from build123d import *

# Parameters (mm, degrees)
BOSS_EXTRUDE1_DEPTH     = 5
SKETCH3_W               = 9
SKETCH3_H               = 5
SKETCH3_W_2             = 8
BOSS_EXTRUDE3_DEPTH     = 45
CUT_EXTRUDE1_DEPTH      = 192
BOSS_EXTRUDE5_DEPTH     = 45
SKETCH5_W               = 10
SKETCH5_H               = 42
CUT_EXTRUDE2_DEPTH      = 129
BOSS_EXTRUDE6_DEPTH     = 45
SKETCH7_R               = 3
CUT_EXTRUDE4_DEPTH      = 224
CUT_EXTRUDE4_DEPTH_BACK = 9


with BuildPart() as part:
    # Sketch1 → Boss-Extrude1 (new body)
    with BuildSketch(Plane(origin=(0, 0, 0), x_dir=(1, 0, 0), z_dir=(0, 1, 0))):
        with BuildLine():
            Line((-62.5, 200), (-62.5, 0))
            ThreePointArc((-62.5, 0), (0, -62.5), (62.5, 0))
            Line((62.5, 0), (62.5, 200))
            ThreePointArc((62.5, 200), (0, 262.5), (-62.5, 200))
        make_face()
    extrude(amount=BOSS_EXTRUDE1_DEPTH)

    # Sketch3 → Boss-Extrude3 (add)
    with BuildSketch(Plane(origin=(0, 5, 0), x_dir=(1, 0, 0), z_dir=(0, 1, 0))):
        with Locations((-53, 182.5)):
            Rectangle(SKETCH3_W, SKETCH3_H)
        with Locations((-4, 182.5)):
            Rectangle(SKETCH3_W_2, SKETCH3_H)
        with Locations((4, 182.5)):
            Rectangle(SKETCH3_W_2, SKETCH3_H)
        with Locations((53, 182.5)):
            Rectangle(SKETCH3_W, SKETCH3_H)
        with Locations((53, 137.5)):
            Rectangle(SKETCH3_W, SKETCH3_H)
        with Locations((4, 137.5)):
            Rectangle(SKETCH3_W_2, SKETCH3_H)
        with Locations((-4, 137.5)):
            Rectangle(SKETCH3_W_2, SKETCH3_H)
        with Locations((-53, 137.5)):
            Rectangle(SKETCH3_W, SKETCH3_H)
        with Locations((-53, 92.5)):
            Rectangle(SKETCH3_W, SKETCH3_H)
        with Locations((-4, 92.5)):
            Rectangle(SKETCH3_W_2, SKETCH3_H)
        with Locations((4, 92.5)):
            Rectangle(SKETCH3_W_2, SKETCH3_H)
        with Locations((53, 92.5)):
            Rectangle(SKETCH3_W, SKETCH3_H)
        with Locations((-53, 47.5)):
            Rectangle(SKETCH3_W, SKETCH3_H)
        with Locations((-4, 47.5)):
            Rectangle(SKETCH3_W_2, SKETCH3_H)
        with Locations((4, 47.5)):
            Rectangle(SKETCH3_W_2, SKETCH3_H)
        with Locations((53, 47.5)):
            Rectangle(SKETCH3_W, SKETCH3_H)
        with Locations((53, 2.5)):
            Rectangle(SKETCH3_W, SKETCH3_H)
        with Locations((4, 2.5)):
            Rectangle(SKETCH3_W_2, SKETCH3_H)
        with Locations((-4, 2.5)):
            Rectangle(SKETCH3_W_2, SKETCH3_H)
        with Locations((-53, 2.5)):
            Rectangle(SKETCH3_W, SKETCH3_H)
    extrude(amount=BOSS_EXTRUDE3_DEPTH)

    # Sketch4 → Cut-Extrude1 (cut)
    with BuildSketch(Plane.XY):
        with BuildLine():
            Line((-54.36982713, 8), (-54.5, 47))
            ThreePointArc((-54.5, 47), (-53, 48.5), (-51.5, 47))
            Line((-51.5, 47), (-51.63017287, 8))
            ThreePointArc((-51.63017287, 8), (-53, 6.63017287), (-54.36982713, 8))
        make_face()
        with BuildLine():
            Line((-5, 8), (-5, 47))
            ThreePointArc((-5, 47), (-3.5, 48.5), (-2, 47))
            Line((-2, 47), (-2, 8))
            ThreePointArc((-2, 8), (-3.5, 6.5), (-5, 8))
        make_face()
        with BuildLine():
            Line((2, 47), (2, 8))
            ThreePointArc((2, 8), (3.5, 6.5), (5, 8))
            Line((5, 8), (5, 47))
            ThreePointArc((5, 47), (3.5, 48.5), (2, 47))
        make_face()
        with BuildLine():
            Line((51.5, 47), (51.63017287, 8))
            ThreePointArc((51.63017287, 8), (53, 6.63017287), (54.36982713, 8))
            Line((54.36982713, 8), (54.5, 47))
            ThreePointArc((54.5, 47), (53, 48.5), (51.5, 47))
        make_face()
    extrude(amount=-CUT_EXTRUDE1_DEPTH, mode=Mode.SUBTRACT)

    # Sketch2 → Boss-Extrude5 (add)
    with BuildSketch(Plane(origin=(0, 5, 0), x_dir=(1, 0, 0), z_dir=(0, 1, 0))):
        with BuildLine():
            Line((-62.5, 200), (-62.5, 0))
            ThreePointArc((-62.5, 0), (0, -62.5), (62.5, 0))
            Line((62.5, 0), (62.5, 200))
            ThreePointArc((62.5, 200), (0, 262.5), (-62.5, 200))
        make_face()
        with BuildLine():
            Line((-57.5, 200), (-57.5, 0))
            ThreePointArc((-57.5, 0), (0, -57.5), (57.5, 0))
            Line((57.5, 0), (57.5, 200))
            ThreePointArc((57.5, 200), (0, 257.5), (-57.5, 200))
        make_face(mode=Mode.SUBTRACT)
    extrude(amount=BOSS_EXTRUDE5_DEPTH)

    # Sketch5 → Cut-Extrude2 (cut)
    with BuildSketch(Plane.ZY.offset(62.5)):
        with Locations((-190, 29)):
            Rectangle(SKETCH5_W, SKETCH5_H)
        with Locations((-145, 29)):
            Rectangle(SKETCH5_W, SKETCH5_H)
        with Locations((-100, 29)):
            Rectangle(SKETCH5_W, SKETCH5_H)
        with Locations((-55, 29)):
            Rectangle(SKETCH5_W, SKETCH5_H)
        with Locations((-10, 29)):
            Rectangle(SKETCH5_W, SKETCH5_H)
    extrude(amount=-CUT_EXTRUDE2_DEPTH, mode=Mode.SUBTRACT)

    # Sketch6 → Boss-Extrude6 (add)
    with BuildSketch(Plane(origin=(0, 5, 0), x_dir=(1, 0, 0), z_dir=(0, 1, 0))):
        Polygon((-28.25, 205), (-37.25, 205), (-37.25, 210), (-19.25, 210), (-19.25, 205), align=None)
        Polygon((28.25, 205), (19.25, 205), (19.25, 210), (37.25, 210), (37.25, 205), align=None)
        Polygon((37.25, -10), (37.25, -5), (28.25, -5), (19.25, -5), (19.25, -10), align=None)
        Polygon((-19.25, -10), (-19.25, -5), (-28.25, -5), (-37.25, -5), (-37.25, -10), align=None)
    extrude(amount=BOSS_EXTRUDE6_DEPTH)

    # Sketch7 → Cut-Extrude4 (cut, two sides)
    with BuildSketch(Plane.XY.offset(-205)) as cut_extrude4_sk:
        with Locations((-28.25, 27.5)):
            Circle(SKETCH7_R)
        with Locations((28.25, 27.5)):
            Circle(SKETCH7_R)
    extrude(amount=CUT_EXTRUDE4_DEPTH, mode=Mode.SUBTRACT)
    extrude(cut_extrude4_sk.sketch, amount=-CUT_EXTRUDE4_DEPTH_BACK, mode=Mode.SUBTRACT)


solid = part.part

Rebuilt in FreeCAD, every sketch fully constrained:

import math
import FreeCAD as App
import Part
import Sketcher
from FreeCAD import Vector
Q = App.Units.Quantity


def add_polygon(sketch, points):
    """Adds a closed chain of lines whose ends are joined by coincident constraints."""
    first, n = sketch.GeometryCount, len(points)
    for a, b in zip(points, points[1:] + points[:1]):
        sketch.addGeometry(Part.LineSegment(App.Vector(*a, 0), App.Vector(*b, 0)), False)
    for i in range(n):
        sketch.addConstraint(Sketcher.Constraint("Coincident", first + i, 2, first + (i + 1) % n, 1))

doc = App.newDocument("Part")
body = doc.addObject("PartDesign::Body", "Body")

sketch1 = body.newObject("Sketcher::SketchObject", "Sketch")
sketch1.AttachmentSupport = (doc.getObject("XZ_Plane"), [""])
sketch1.MapMode = "FlatFace"
sketch1.addGeometry([
    Part.LineSegment(Vector(-62.5, -200, 0), Vector(-62.5, 0, 0)),
    Part.ArcOfCircle(Part.Circle(Vector(0, 0, 0), Vector(0, 0, 1), 62.5), math.radians(0), math.radians(180)),
    Part.LineSegment(Vector(62.5, 0, 0), Vector(62.5, -200, 0)),
    Part.ArcOfCircle(Part.Circle(Vector(0, -200, 0), Vector(0, 0, 1), 62.5), math.radians(180), math.radians(360)),
], False)
sketch1.addConstraint([
    Sketcher.Constraint("Tangent", 0, 2, 1, 2),
    Sketcher.Constraint("Tangent", 1, 1, 2, 1),
    Sketcher.Constraint("Tangent", 2, 2, 3, 2),
    Sketcher.Constraint("Tangent", 3, 1, 0, 1),
    Sketcher.Constraint("Vertical", 0),
    Sketcher.Constraint("Vertical", 2),
    Sketcher.Constraint("Coincident", 1, 3, -1, 1),
    Sketcher.Constraint("Radius", 1, Q("62.5 mm")),
    Sketcher.Constraint("DistanceY", 0, 1, 0, 2, Q("200 mm")),
])
pad1 = body.newObject("PartDesign::Pad", "Pad")
pad1.Profile = sketch1
pad1.Length = 5
pad1.Reversed = True

sketch2 = body.newObject("Sketcher::SketchObject", "Sketch001")
sketch2.AttachmentSupport = (doc.getObject("XZ_Plane"), [""])
sketch2.MapMode = "FlatFace"
sketch2.AttachmentOffset = App.Placement(Vector(0, 0, -5), App.Rotation())
add_polygon(sketch2, [(-57.5, -185), (-57.5, -180), (-48.5, -180), (-48.5, -185)])
add_polygon(sketch2, [(-8, -185), (-8, -180), (8, -180), (8, -185)])
add_polygon(sketch2, [(48.5, -185), (48.5, -180), (57.5, -180), (57.5, -185)])
add_polygon(sketch2, [(48.5, -140), (48.5, -135), (57.5, -135), (57.5, -140)])
add_polygon(sketch2, [(8, -135), (8, -140), (-8, -140), (-8, -135)])
add_polygon(sketch2, [(-57.5, -140), (-57.5, -135), (-48.5, -135), (-48.5, -140)])
add_polygon(sketch2, [(-57.5, -95), (-57.5, -90), (-48.5, -90), (-48.5, -95)])
add_polygon(sketch2, [(-8, -95), (-8, -90), (8, -90), (8, -95)])
add_polygon(sketch2, [(48.5, -95), (48.5, -90), (57.5, -90), (57.5, -95)])
add_polygon(sketch2, [(-57.5, -50), (-57.5, -45), (-48.5, -45), (-48.5, -50)])
add_polygon(sketch2, [(-8, -50), (-8, -45), (8, -45), (8, -50)])
add_polygon(sketch2, [(48.5, -50), (48.5, -45), (57.5, -45), (57.5, -50)])
add_polygon(sketch2, [(48.5, -5), (48.5, 0), (57.5, 0), (57.5, -5)])
add_polygon(sketch2, [(8, 0), (8, -5), (-8, -5), (-8, 0)])
add_polygon(sketch2, [(-57.5, -5), (-57.5, 0), (-48.5, 0), (-48.5, -5)])
sketch2.addConstraint([
    Sketcher.Constraint("Vertical", 0),
    Sketcher.Constraint("Horizontal", 1),
    Sketcher.Constraint("Vertical", 2),
    Sketcher.Constraint("Horizontal", 3),
    Sketcher.Constraint("Vertical", 4),
    Sketcher.Constraint("Horizontal", 5),
    Sketcher.Constraint("Vertical", 6),
    Sketcher.Constraint("Horizontal", 7),
    Sketcher.Constraint("Vertical", 8),
    Sketcher.Constraint("Horizontal", 9),
    Sketcher.Constraint("Vertical", 10),
    Sketcher.Constraint("Horizontal", 11),
    Sketcher.Constraint("Vertical", 12),
    Sketcher.Constraint("Horizontal", 13),
    Sketcher.Constraint("Vertical", 14),
    Sketcher.Constraint("Horizontal", 15),
    Sketcher.Constraint("Vertical", 16),
    Sketcher.Constraint("Horizontal", 17),
    Sketcher.Constraint("Vertical", 18),
    Sketcher.Constraint("Horizontal", 19),
    Sketcher.Constraint("Vertical", 20),
    Sketcher.Constraint("Horizontal", 21),
    Sketcher.Constraint("Vertical", 22),
    Sketcher.Constraint("Horizontal", 23),
    Sketcher.Constraint("Vertical", 24),
    Sketcher.Constraint("Horizontal", 25),
    Sketcher.Constraint("Vertical", 26),
    Sketcher.Constraint("Horizontal", 27),
    Sketcher.Constraint("Vertical", 28),
    Sketcher.Constraint("Horizontal", 29),
    Sketcher.Constraint("Vertical", 30),
    Sketcher.Constraint("Horizontal", 31),
    Sketcher.Constraint("Vertical", 32),
    Sketcher.Constraint("Horizontal", 33),
    Sketcher.Constraint("Vertical", 34),
    Sketcher.Constraint("Horizontal", 35),
    Sketcher.Constraint("Vertical", 36),
    Sketcher.Constraint("Horizontal", 37),
    Sketcher.Constraint("Vertical", 38),
    Sketcher.Constraint("Horizontal", 39),
    Sketcher.Constraint("Vertical", 40),
    Sketcher.Constraint("Horizontal", 41),
    Sketcher.Constraint("Vertical", 42),
    Sketcher.Constraint("Horizontal", 43),
    Sketcher.Constraint("Vertical", 44),
    Sketcher.Constraint("Horizontal", 45),
    Sketcher.Constraint("Vertical", 46),
    Sketcher.Constraint("Horizontal", 47),
    Sketcher.Constraint("Vertical", 48),
    Sketcher.Constraint("Horizontal", 49),
    Sketcher.Constraint("Vertical", 50),
    Sketcher.Constraint("Horizontal", 51),
    Sketcher.Constraint("Vertical", 52),
    Sketcher.Constraint("Horizontal", 53),
    Sketcher.Constraint("Vertical", 54),
    Sketcher.Constraint("Horizontal", 55),
    Sketcher.Constraint("Vertical", 56),
    Sketcher.Constraint("Horizontal", 57),
    Sketcher.Constraint("Vertical", 58),
    Sketcher.Constraint("Horizontal", 59),
    Sketcher.Constraint("Symmetric", 54, 2, 55, 2, -1, 1),
    Sketcher.Constraint("Symmetric", 49, 2, 56, 2, -1, 1),
    Sketcher.Constraint("Symmetric", 1, 2, 8, 2, -2),
    Sketcher.Constraint("Symmetric", 3, 2, 10, 2, -2),
    Sketcher.Constraint("Symmetric", 13, 2, 20, 2, -2),
    Sketcher.Constraint("Symmetric", 15, 2, 22, 2, -2),
    Sketcher.Constraint("Symmetric", 25, 2, 32, 2, -2),
    Sketcher.Constraint("Symmetric", 27, 2, 34, 2, -2),
    Sketcher.Constraint("Symmetric", 37, 2, 44, 2, -2),
    Sketcher.Constraint("Symmetric", 39, 2, 46, 2, -2),
    Sketcher.Constraint("Symmetric", 48, 2, 57, 2, -2),
    Sketcher.Constraint("Horizontal", 1, 2, 4, 2),
    Sketcher.Constraint("Horizontal", 3, 2, 6, 2),
    Sketcher.Constraint("Horizontal", 15, 2, 16, 2),
    Sketcher.Constraint("Horizontal", 13, 2, 18, 2),
    Sketcher.Constraint("Horizontal", 25, 2, 28, 2),
    Sketcher.Constraint("Horizontal", 27, 2, 30, 2),
    Sketcher.Constraint("Horizontal", 37, 2, 40, 2),
    Sketcher.Constraint("Horizontal", 39, 2, 42, 2),
    Sketcher.Constraint("Horizontal", 51, 2, 52, 2),
    Sketcher.Constraint("Horizontal", 53, 2, 58, 2),
    Sketcher.Constraint("Vertical", 11, 2, 12, 2),
    Sketcher.Constraint("Vertical", 10, 2, 13, 2),
    Sketcher.Constraint("Vertical", 6, 2, 16, 2),
    Sketcher.Constraint("Vertical", 7, 2, 17, 2),
    Sketcher.Constraint("Vertical", 23, 2, 24, 2),
    Sketcher.Constraint("Vertical", 22, 2, 25, 2),
    Sketcher.Constraint("Vertical", 18, 2, 28, 2),
    Sketcher.Constraint("Vertical", 19, 2, 29, 2),
    Sketcher.Constraint("Vertical", 27, 2, 36, 2),
    Sketcher.Constraint("Vertical", 26, 2, 37, 2),
    Sketcher.Constraint("Vertical", 31, 2, 40, 2),
    Sketcher.Constraint("Vertical", 30, 2, 41, 2),
    Sketcher.Constraint("Vertical", 47, 2, 48, 2),
    Sketcher.Constraint("Vertical", 46, 2, 49, 2),
    Sketcher.Constraint("Vertical", 42, 2, 52, 2),
    Sketcher.Constraint("Vertical", 43, 2, 53, 2),
    Sketcher.Constraint("Equal", 10, 12),
    Sketcher.Constraint("Equal", 22, 24),
    Sketcher.Constraint("Equal", 34, 36),
    Sketcher.Constraint("Equal", 46, 48),
    Sketcher.Constraint("DistanceX", 1, 1, 1, 2, Q("9 mm")),
    Sketcher.Constraint("DistanceX", 5, 1, 5, 2, Q("16 mm")),
    Sketcher.Constraint("DistanceY", 0, 1, 0, 2, Q("5 mm")),
    Sketcher.Constraint("DistanceY", 0, 2, -1, 1, Q("180 mm")),
    Sketcher.Constraint("DistanceY", 12, 2, -1, 1, Q("135 mm")),
    Sketcher.Constraint("DistanceY", 24, 2, -1, 1, Q("90 mm")),
    Sketcher.Constraint("DistanceY", 36, 2, -1, 1, Q("45 mm")),
    Sketcher.Constraint("DistanceX", 1, 2, 8, 2, Q("97 mm")),
])
pad2 = body.newObject("PartDesign::Pad", "Pad001")
pad2.Profile = sketch2
pad2.Length = 45
pad2.Reversed = True

sketch3 = body.newObject("Sketcher::SketchObject", "Sketch002")
sketch3.AttachmentSupport = (doc.getObject("XY_Plane"), [""])
sketch3.MapMode = "FlatFace"
sketch3.addGeometry([
    Part.LineSegment(Vector(-54.5, 47, 0), Vector(-54.369827, 8, 0)),
    Part.ArcOfCircle(Part.Circle(Vector(-53, 8, 0), Vector(0, 0, 1), 1.369827), math.radians(180), math.radians(360)),
    Part.LineSegment(Vector(-51.630173, 8, 0), Vector(-51.5, 47, 0)),
    Part.ArcOfCircle(Part.Circle(Vector(-53, 47, 0), Vector(0, 0, 1), 1.5), math.radians(0), math.radians(180)),
    Part.LineSegment(Vector(-5, 47, 0), Vector(-5, 8, 0)),
    Part.ArcOfCircle(Part.Circle(Vector(-3.5, 8, 0), Vector(0, 0, 1), 1.5), math.radians(180), math.radians(360)),
    Part.LineSegment(Vector(-2, 8, 0), Vector(-2, 47, 0)),
    Part.ArcOfCircle(Part.Circle(Vector(-3.5, 47, 0), Vector(0, 0, 1), 1.5), math.radians(0), math.radians(180)),
    Part.LineSegment(Vector(2, 47, 0), Vector(2, 8, 0)),
    Part.ArcOfCircle(Part.Circle(Vector(3.5, 8, 0), Vector(0, 0, 1), 1.5), math.radians(180), math.radians(360)),
    Part.LineSegment(Vector(5, 8, 0), Vector(5, 47, 0)),
    Part.ArcOfCircle(Part.Circle(Vector(3.5, 47, 0), Vector(0, 0, 1), 1.5), math.radians(0), math.radians(180)),
    Part.LineSegment(Vector(51.5, 47, 0), Vector(51.630173, 8, 0)),
    Part.ArcOfCircle(Part.Circle(Vector(53, 8, 0), Vector(0, 0, 1), 1.369827), math.radians(180), math.radians(360)),
    Part.LineSegment(Vector(54.369827, 8, 0), Vector(54.5, 47, 0)),
    Part.ArcOfCircle(Part.Circle(Vector(53, 47, 0), Vector(0, 0, 1), 1.5), math.radians(0), math.radians(180)),
], False)
sketch3.addConstraint([
    Sketcher.Constraint("Coincident", 0, 2, 1, 1),
    Sketcher.Constraint("Coincident", 1, 2, 2, 1),
    Sketcher.Constraint("Coincident", 2, 2, 3, 1),
    Sketcher.Constraint("Coincident", 3, 2, 0, 1),
    Sketcher.Constraint("Tangent", 4, 2, 5, 1),
    Sketcher.Constraint("Tangent", 5, 2, 6, 1),
    Sketcher.Constraint("Tangent", 6, 2, 7, 1),
    Sketcher.Constraint("Tangent", 7, 2, 4, 1),
    Sketcher.Constraint("Tangent", 8, 2, 9, 1),
    Sketcher.Constraint("Tangent", 9, 2, 10, 1),
    Sketcher.Constraint("Tangent", 10, 2, 11, 1),
    Sketcher.Constraint("Tangent", 11, 2, 8, 1),
    Sketcher.Constraint("Coincident", 12, 2, 13, 1),
    Sketcher.Constraint("Coincident", 13, 2, 14, 1),
    Sketcher.Constraint("Coincident", 14, 2, 15, 1),
    Sketcher.Constraint("Coincident", 15, 2, 12, 1),
    Sketcher.Constraint("Vertical", 4),
    Sketcher.Constraint("Vertical", 6),
    Sketcher.Constraint("Vertical", 8),
    Sketcher.Constraint("Vertical", 10),
    Sketcher.Constraint("Equal", 3, 5),
    Sketcher.Constraint("Equal", 7, 9),
    Sketcher.Constraint("Equal", 1, 13),
    Sketcher.Constraint("Equal", 11, 15),
    Sketcher.Constraint("Symmetric", 5, 3, 9, 3, -2),
    Sketcher.Constraint("Symmetric", 1, 3, 13, 3, -2),
    Sketcher.Constraint("Symmetric", 3, 3, 15, 3, -2),
    Sketcher.Constraint("Parallel", 0, 12),
    Sketcher.Constraint("Parallel", 2, 14),
    Sketcher.Constraint("Horizontal", 1, 3, 5, 3),
    Sketcher.Constraint("Horizontal", 3, 3, 7, 3),
    Sketcher.Constraint("Horizontal", 7, 3, 11, 3),
    Sketcher.Constraint("Horizontal", 13, 3, 0, 2),
    Sketcher.Constraint("Horizontal", 0, 2, 1, 2),
    Sketcher.Constraint("Horizontal", 15, 3, 2, 2),
    Sketcher.Constraint("Horizontal", 2, 2, 3, 2),
    Sketcher.Constraint("Horizontal", 9, 2, 12, 2),
    Sketcher.Constraint("Horizontal", 12, 2, 13, 2),
    Sketcher.Constraint("Horizontal", 11, 2, 14, 2),
    Sketcher.Constraint("Radius", 3, Q("1.5 mm")),
    Sketcher.Constraint("DistanceY", 4, 2, 4, 1, Q("39 mm")),
    Sketcher.Constraint("DistanceX", 1, 3, -1, 1, Q("53 mm")),
    Sketcher.Constraint("DistanceY", -1, 1, 1, 3, Q("8 mm")),
    Sketcher.Constraint("DistanceX", 4, 2, -1, 1, Q("5 mm")),
    Sketcher.Constraint("Radius", 1, Q("1.369827 mm")),
])
pocket1 = body.newObject("PartDesign::Pocket", "Pocket")
pocket1.Profile = sketch3
pocket1.Length = 192

sketch4 = body.newObject("Sketcher::SketchObject", "Sketch003")
sketch4.AttachmentSupport = (doc.getObject("XZ_Plane"), [""])
sketch4.MapMode = "FlatFace"
sketch4.AttachmentOffset = App.Placement(Vector(0, 0, -5), App.Rotation())
sketch4.addGeometry([
    Part.LineSegment(Vector(-62.5, -200, 0), Vector(-62.5, 0, 0)),
    Part.ArcOfCircle(Part.Circle(Vector(0, 0, 0), Vector(0, 0, 1), 62.5), math.radians(0), math.radians(180)),
    Part.LineSegment(Vector(62.5, 0, 0), Vector(62.5, -200, 0)),
    Part.ArcOfCircle(Part.Circle(Vector(0, -200, 0), Vector(0, 0, 1), 62.5), math.radians(180), math.radians(360)),
    Part.LineSegment(Vector(-57.5, 0, 0), Vector(-57.5, -200, 0)),
    Part.ArcOfCircle(Part.Circle(Vector(0, -200, 0), Vector(0, 0, 1), 57.5), math.radians(180), math.radians(360)),
    Part.LineSegment(Vector(57.5, -200, 0), Vector(57.5, 0, 0)),
    Part.ArcOfCircle(Part.Circle(Vector(0, 0, 0), Vector(0, 0, 1), 57.5), math.radians(0), math.radians(180)),
], False)
sketch4.addConstraint([
    Sketcher.Constraint("Tangent", 0, 2, 1, 2),
    Sketcher.Constraint("Tangent", 1, 1, 2, 1),
    Sketcher.Constraint("Tangent", 2, 2, 3, 2),
    Sketcher.Constraint("Tangent", 3, 1, 0, 1),
    Sketcher.Constraint("Tangent", 4, 2, 5, 1),
    Sketcher.Constraint("Tangent", 5, 2, 6, 1),
    Sketcher.Constraint("Tangent", 6, 2, 7, 1),
    Sketcher.Constraint("Tangent", 7, 2, 4, 1),
    Sketcher.Constraint("Vertical", 0),
    Sketcher.Constraint("Vertical", 2),
    Sketcher.Constraint("Vertical", 4),
    Sketcher.Constraint("Vertical", 6),
    Sketcher.Constraint("Coincident", 1, 3, -1, 1),
    Sketcher.Constraint("Coincident", 7, 3, -1, 1),
    Sketcher.Constraint("Horizontal", 5, 3, 2, 2),
    Sketcher.Constraint("Radius", 1, Q("62.5 mm")),
    Sketcher.Constraint("Radius", 5, Q("57.5 mm")),
    Sketcher.Constraint("DistanceY", 0, 1, 0, 2, Q("200 mm")),
])
pad3 = body.newObject("PartDesign::Pad", "Pad002")
pad3.Profile = sketch4
pad3.Length = 45
pad3.Reversed = True

sketch5 = body.newObject("Sketcher::SketchObject", "Sketch004")
sketch5.AttachmentSupport = (doc.getObject("YZ_Plane"), [""])
sketch5.MapMode = "FlatFace"
sketch5.AttachmentOffset = App.Placement(Vector(0, 0, -62.5), App.Rotation())
add_polygon(sketch5, [(50, -195), (8, -195), (8, -185), (50, -185)])
add_polygon(sketch5, [(50, -150), (8, -150), (8, -140), (50, -140)])
add_polygon(sketch5, [(50, -105), (8, -105), (8, -95), (50, -95)])
add_polygon(sketch5, [(50, -60), (8, -60), (8, -50), (50, -50)])
add_polygon(sketch5, [(50, -15), (8, -15), (8, -5), (50, -5)])
sketch5.addConstraint([
    Sketcher.Constraint("Horizontal", 0),
    Sketcher.Constraint("Vertical", 1),
    Sketcher.Constraint("Horizontal", 2),
    Sketcher.Constraint("Vertical", 3),
    Sketcher.Constraint("Horizontal", 4),
    Sketcher.Constraint("Vertical", 5),
    Sketcher.Constraint("Horizontal", 6),
    Sketcher.Constraint("Vertical", 7),
    Sketcher.Constraint("Horizontal", 8),
    Sketcher.Constraint("Vertical", 9),
    Sketcher.Constraint("Horizontal", 10),
    Sketcher.Constraint("Vertical", 11),
    Sketcher.Constraint("Horizontal", 12),
    Sketcher.Constraint("Vertical", 13),
    Sketcher.Constraint("Horizontal", 14),
    Sketcher.Constraint("Vertical", 15),
    Sketcher.Constraint("Horizontal", 16),
    Sketcher.Constraint("Vertical", 17),
    Sketcher.Constraint("Horizontal", 18),
    Sketcher.Constraint("Vertical", 19),
    Sketcher.Constraint("Vertical", 1, 2, 4, 2),
    Sketcher.Constraint("Vertical", 3, 2, 6, 2),
    Sketcher.Constraint("Vertical", 5, 2, 8, 2),
    Sketcher.Constraint("Vertical", 7, 2, 10, 2),
    Sketcher.Constraint("Vertical", 9, 2, 12, 2),
    Sketcher.Constraint("Vertical", 11, 2, 14, 2),
    Sketcher.Constraint("Vertical", 13, 2, 16, 2),
    Sketcher.Constraint("Vertical", 15, 2, 18, 2),
    Sketcher.Constraint("Equal", 3, 5),
    Sketcher.Constraint("Equal", 7, 9),
    Sketcher.Constraint("Equal", 11, 13),
    Sketcher.Constraint("Equal", 15, 17),
    Sketcher.Constraint("DistanceX", 0, 2, 0, 1, Q("42 mm")),
    Sketcher.Constraint("DistanceY", 1, 1, 1, 2, Q("10 mm")),
    Sketcher.Constraint("DistanceX", -1, 1, 0, 2, Q("8 mm")),
    Sketcher.Constraint("DistanceY", 0, 2, -1, 1, Q("195 mm")),
    Sketcher.Constraint("DistanceY", 4, 2, -1, 1, Q("150 mm")),
    Sketcher.Constraint("DistanceY", 8, 2, -1, 1, Q("105 mm")),
    Sketcher.Constraint("DistanceY", 12, 2, -1, 1, Q("60 mm")),
    Sketcher.Constraint("DistanceY", 16, 2, -1, 1, Q("15 mm")),
])
pocket2 = body.newObject("PartDesign::Pocket", "Pocket001")
pocket2.Profile = sketch5
pocket2.Length = 129
pocket2.Reversed = True

sketch6 = body.newObject("Sketcher::SketchObject", "Sketch005")
sketch6.AttachmentSupport = (doc.getObject("XZ_Plane"), [""])
sketch6.MapMode = "FlatFace"
sketch6.AttachmentOffset = App.Placement(Vector(0, 0, -5), App.Rotation())
add_polygon(sketch6, [(-37.25, -205), (-19.25, -205), (-19.25, -210), (-37.25, -210)])
add_polygon(sketch6, [(19.25, -205), (37.25, -205), (37.25, -210), (19.25, -210)])
add_polygon(sketch6, [(37.25, 10), (37.25, 5), (19.25, 5), (19.25, 10)])
add_polygon(sketch6, [(-19.25, 10), (-19.25, 5), (-37.25, 5), (-37.25, 10)])
sketch6.addConstraint([
    Sketcher.Constraint("Horizontal", 0),
    Sketcher.Constraint("Vertical", 1),
    Sketcher.Constraint("Horizontal", 2),
    Sketcher.Constraint("Vertical", 3),
    Sketcher.Constraint("Horizontal", 4),
    Sketcher.Constraint("Vertical", 5),
    Sketcher.Constraint("Horizontal", 6),
    Sketcher.Constraint("Vertical", 7),
    Sketcher.Constraint("Vertical", 8),
    Sketcher.Constraint("Horizontal", 9),
    Sketcher.Constraint("Vertical", 10),
    Sketcher.Constraint("Horizontal", 11),
    Sketcher.Constraint("Vertical", 12),
    Sketcher.Constraint("Horizontal", 13),
    Sketcher.Constraint("Vertical", 14),
    Sketcher.Constraint("Horizontal", 15),
    Sketcher.Constraint("Symmetric", 3, 2, 4, 2, -2),
    Sketcher.Constraint("Symmetric", 1, 2, 6, 2, -2),
    Sketcher.Constraint("Symmetric", 9, 2, 12, 2, -2),
    Sketcher.Constraint("Symmetric", 11, 2, 14, 2, -2),
    Sketcher.Constraint("Vertical", 5, 2, 8, 2),
    Sketcher.Constraint("Vertical", 7, 2, 9, 2),
    Sketcher.Constraint("Equal", 7, 8),
    Sketcher.Constraint("DistanceX", 0, 1, 0, 2, Q("18 mm")),
    Sketcher.Constraint("DistanceY", 1, 2, 1, 1, Q("5 mm")),
    Sketcher.Constraint("DistanceY", 0, 2, -1, 1, Q("205 mm")),
    Sketcher.Constraint("DistanceY", -1, 1, 8, 2, Q("5 mm")),
    Sketcher.Constraint("DistanceX", 0, 2, 4, 2, Q("56.5 mm")),
])
pad4 = body.newObject("PartDesign::Pad", "Pad003")
pad4.Profile = sketch6
pad4.Length = 45
pad4.Reversed = True

sketch7 = body.newObject("Sketcher::SketchObject", "Sketch006")
sketch7.AttachmentSupport = (doc.getObject("XY_Plane"), [""])
sketch7.MapMode = "FlatFace"
sketch7.AttachmentOffset = App.Placement(Vector(0, 0, -205), App.Rotation())
sketch7.addGeometry([
    Part.Circle(Vector(-28.25, 27.5, 0), Vector(0, 0, 1), 3),
    Part.Circle(Vector(28.25, 27.5, 0), Vector(0, 0, 1), 3),
], False)
sketch7.addConstraint([
    Sketcher.Constraint("Equal", 0, 1),
    Sketcher.Constraint("Symmetric", 0, 3, 1, 3, -2),
    Sketcher.Constraint("Diameter", 0, Q("6 mm")),
    Sketcher.Constraint("DistanceY", -1, 1, 0, 3, Q("27.5 mm")),
    Sketcher.Constraint("DistanceX", 0, 3, 1, 3, Q("56.5 mm")),
])
pocket3 = body.newObject("PartDesign::Pocket", "Pocket002")
pocket3.Profile = sketch7
pocket3.Type = "TwoLengths"
pocket3.Length = 224
pocket3.Length2 = 9
pocket3.Reversed = True

doc.recompute()
